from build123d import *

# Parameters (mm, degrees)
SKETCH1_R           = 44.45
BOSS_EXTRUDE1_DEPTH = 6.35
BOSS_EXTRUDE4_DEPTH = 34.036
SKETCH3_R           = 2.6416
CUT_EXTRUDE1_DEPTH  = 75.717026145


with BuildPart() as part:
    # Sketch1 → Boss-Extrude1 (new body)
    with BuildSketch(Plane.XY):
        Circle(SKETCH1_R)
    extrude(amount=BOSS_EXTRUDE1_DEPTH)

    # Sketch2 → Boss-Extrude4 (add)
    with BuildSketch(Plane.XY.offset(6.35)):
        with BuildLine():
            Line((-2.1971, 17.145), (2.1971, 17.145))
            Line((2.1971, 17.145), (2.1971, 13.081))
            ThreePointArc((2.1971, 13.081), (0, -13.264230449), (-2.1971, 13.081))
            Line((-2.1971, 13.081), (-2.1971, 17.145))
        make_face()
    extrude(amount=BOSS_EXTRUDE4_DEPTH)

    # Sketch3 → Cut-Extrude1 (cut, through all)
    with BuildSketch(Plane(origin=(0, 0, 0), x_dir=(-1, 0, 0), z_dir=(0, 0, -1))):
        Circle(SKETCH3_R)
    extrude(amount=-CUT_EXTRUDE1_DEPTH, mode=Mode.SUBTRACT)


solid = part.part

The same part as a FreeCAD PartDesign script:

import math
import FreeCAD as App
import Part
import Sketcher

V = App.Vector
Q = App.Units.Quantity

doc = App.newDocument("Part")
params = doc.addObject("Spreadsheet::Sheet", "Params")
for row, (alias, value) in enumerate([
    ("sketch1_diameter", "3.5 in"),
    ("pad1_length", "0.25 in"),
    ("sketch2_height", "0.16 in"),
    ("sketch2_width", "0.173 in"),
    ("pad2_length", "1.34 in"),
    ("sketch3_diameter", "0.208 in"),
], start=1):
    params.set(f"A{row}", alias)
    params.set(f"B{row}", "=" + value)
    params.setAlias(f"B{row}", alias)

body = doc.addObject("PartDesign::Body", "Body")

sketch1 = doc.addObject("Sketcher::SketchObject", "Sketch")
body.addObject(sketch1)
sketch1.AttachmentSupport = (doc.XY_Plane, [""])
sketch1.MapMode = "FlatFace"
sketch1.addGeometry(Part.Circle(V(0, 0, 0), V(0, 0, 1), 44.45), False)
sketch1.addConstraint([
    Sketcher.Constraint("Coincident", 0, 3, -1, 1),
    Sketcher.Constraint("Diameter", 0, Q("3.5 in")),
])
sketch1.setExpression("Constraints[1]", "Params.sketch1_diameter")
pad1 = doc.addObject("PartDesign::Pad", "Pad")
body.addObject(pad1)
pad1.Profile = sketch1
pad1.setExpression("Length", "Params.pad1_length")

sketch2 = doc.addObject("Sketcher::SketchObject", "Sketch001")
body.addObject(sketch2)
sketch2.AttachmentSupport = (doc.XY_Plane, [""])
sketch2.MapMode = "FlatFace"
sketch2.AttachmentOffset = App.Placement(V(0, 0, 0.25 * 25.4), App.Rotation())
sketch2.addGeometry([
    Part.LineSegment(V(2.1971, 17.145, 0), V(-2.1971, 17.145, 0)),
    Part.LineSegment(V(-2.1971, 17.145, 0), V(-2.1971, 13.081, 0)),
    Part.ArcOfCircle(Part.Circle(V(0, 0, 0), V(0, 0, 1), 13.26423), math.radians(99.534472), math.radians(440.465528)),
    Part.LineSegment(V(2.1971, 13.081, 0), V(2.1971, 17.145, 0)),
], False)
sketch2.addConstraint([
    Sketcher.Constraint("Coincident", 0, 2, 1, 1),
    Sketcher.Constraint("Coincident", 1, 2, 2, 1),
    Sketcher.Constraint("Coincident", 2, 2, 3, 1),
    Sketcher.Constraint("Coincident", 3, 2, 0, 1),
    Sketcher.Constraint("Horizontal", 0),
    Sketcher.Constraint("Vertical", 1),
    Sketcher.Constraint("Vertical", 3),
    Sketcher.Constraint("Coincident", 2, 3, -1, 1),
    Sketcher.Constraint("Horizontal", 1, 2, 2, 2),
    Sketcher.Constraint("DistanceY", 1, 2, 1, 1, Q("0.16 in")),
    Sketcher.Constraint("DistanceX", 0, 2, 0, 1, Q("0.173 in")),
    Sketcher.Constraint("DistanceY", -1, 1, 0, 2, Q("0.675 in")),
])
sketch2.setExpression("Constraints[9]", "Params.sketch2_height")
sketch2.setExpression("Constraints[10]", "Params.sketch2_width")
pad2 = doc.addObject("PartDesign::Pad", "Pad001")
body.addObject(pad2)
pad2.Profile = sketch2
pad2.setExpression("Length", "Params.pad2_length")

sketch3 = doc.addObject("Sketcher::SketchObject", "Sketch002")
body.addObject(sketch3)
sketch3.AttachmentSupport = (doc.XY_Plane, [""])
sketch3.MapMode = "FlatFace"
sketch3.addGeometry(Part.Circle(V(0, 0, 0), V(0, 0, 1), 2.6416), False)
sketch3.addConstraint([
    Sketcher.Constraint("Coincident", 0, 3, -1, 1),
    Sketcher.Constraint("Diameter", 0, Q("0.208 in")),
])
sketch3.setExpression("Constraints[1]", "Params.sketch3_diameter")
pocket1 = doc.addObject("PartDesign::Pocket", "Pocket")
body.addObject(pocket1)
pocket1.Profile = sketch3
pocket1.Type = "ThroughAll"
pocket1.Reversed = True

doc.recompute()
